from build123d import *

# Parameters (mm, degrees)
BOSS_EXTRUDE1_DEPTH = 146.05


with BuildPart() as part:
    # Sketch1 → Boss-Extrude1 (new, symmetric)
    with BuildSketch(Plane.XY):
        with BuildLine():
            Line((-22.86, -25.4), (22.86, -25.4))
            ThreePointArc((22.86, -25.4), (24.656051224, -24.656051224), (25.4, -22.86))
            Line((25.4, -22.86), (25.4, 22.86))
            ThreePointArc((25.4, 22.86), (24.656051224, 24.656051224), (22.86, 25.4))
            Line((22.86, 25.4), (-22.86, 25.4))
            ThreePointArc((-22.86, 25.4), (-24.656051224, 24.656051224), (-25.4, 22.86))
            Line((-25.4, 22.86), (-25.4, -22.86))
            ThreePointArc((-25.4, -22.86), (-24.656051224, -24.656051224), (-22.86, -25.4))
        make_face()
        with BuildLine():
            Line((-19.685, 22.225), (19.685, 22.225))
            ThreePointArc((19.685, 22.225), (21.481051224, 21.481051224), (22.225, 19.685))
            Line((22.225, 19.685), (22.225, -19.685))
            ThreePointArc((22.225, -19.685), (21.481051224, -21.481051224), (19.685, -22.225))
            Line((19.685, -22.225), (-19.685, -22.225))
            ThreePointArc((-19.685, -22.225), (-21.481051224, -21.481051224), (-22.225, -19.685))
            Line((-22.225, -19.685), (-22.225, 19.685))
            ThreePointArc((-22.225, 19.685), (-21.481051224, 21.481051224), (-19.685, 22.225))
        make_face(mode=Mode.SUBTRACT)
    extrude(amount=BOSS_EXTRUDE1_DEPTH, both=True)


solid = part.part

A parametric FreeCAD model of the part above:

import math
import FreeCAD as App
import Part
import Sketcher
Q = App.Units.Quantity

doc = App.newDocument("Part")
body = doc.addObject("PartDesign::Body", "Body")

# Sketch on XY plane
sketch1 = body.newObject("Sketcher::SketchObject", "Sketch")
sketch1.AttachmentSupport = (doc.getObject("XY_Plane"), [""])
sketch1.MapMode = "FlatFace"
sketch1.addGeometry(Part.LineSegment(App.Vector(-22.9, -25.4, 0), App.Vector(22.9, -25.4, 0)), False)
sketch1.addGeometry(Part.ArcOfCircle(Part.Circle(App.Vector(22.9, -22.9, 0), App.Vector(0, 0, 1), 2.5), math.radians(-90), math.radians(0)), False)
sketch1.addGeometry(Part.LineSegment(App.Vector(25.4, -22.9, 0), App.Vector(25.4, 22.9, 0)), False)
sketch1.addGeometry(Part.ArcOfCircle(Part.Circle(App.Vector(22.9, 22.9, 0), App.Vector(0, 0, 1), 2.5), math.radians(0), math.radians(90)), False)
sketch1.addGeometry(Part.LineSegment(App.Vector(22.9, 25.4, 0), App.Vector(-22.9, 25.4, 0)), False)
sketch1.addGeometry(Part.ArcOfCircle(Part.Circle(App.Vector(-22.9, 22.9, 0), App.Vector(0, 0, 1), 2.5), math.radians(90), math.radians(180)), False)
sketch1.addGeometry(Part.LineSegment(App.Vector(-25.4, 22.9, 0), App.Vector(-25.4, -22.9, 0)), False)
sketch1.addGeometry(Part.ArcOfCircle(Part.Circle(App.Vector(-22.9, -22.9, 0), App.Vector(0, 0, 1), 2.5), math.radians(-180), math.radians(-90)), False)
sketch1.addGeometry(Part.ArcOfCircle(Part.Circle(App.Vector(-19.7, 19.7, 0), App.Vector(0, 0, 1), 2.5), math.radians(90), math.radians(180)), False)
sketch1.addGeometry(Part.LineSegment(App.Vector(-19.7, 22.2, 0), App.Vector(19.7, 22.2, 0)), False)
sketch1.addGeometry(Part.ArcOfCircle(Part.Circle(App.Vector(19.7, 19.7, 0), App.Vector(0, 0, 1), 2.5), math.radians(0), math.radians(90)), False)
sketch1.addGeometry(Part.LineSegment(App.Vector(22.2, 19.7, 0), App.Vector(22.2, -19.7, 0)), False)
sketch1.addGeometry(Part.ArcOfCircle(Part.Circle(App.Vector(19.7, -19.7, 0), App.Vector(0, 0, 1), 2.5), math.radians(-90), math.radians(0)), False)
sketch1.addGeometry(Part.LineSegment(App.Vector(19.7, -22.2, 0), App.Vector(-19.7, -22.2, 0)), False)
sketch1.addGeometry(Part.ArcOfCircle(Part.Circle(App.Vector(-19.7, -19.7, 0), App.Vector(0, 0, 1), 2.5), math.radians(-180), math.radians(-90)), False)
sketch1.addGeometry(Part.LineSegment(App.Vector(-22.2, -19.7, 0), App.Vector(-22.2, 19.7, 0)), False)
sketch1.addConstraint(Sketcher.Constraint("Tangent", 0, 2, 1, 1))
sketch1.addConstraint(Sketcher.Constraint("Tangent", 1, 2, 2, 1))
sketch1.addConstraint(Sketcher.Constraint("Tangent", 2, 2, 3, 1))
sketch1.addConstraint(Sketcher.Constraint("Tangent", 3, 2, 4, 1))
sketch1.addConstraint(Sketcher.Constraint("Tangent", 4, 2, 5, 1))
sketch1.addConstraint(Sketcher.Constraint("Tangent", 5, 2, 6, 1))
sketch1.addConstraint(Sketcher.Constraint("Tangent", 6, 2, 7, 1))
sketch1.addConstraint(Sketcher.Constraint("Tangent", 7, 2, 0, 1))
sketch1.addConstraint(Sketcher.Constraint("Tangent", 8, 1, 9, 1))
sketch1.addConstraint(Sketcher.Constraint("Tangent", 9, 2, 10, 2))
sketch1.addConstraint(Sketcher.Constraint("Tangent", 10, 1, 11, 1))
sketch1.addConstraint(Sketcher.Constraint("Tangent", 11, 2, 12, 2))
sketch1.addConstraint(Sketcher.Constraint("Tangent", 12, 1, 13, 1))
sketch1.addConstraint(Sketcher.Constraint("Tangent", 13, 2, 14, 2))
sketch1.addConstraint(Sketcher.Constraint("Tangent", 14, 1, 15, 1))
sketch1.addConstraint(Sketcher.Constraint("Tangent", 15, 2, 8, 2))
sketch1.addConstraint(Sketcher.Constraint("Horizontal", 0))
sketch1.addConstraint(Sketcher.Constraint("Vertical", 2))
sketch1.addConstraint(Sketcher.Constraint("Horizontal", 4))
sketch1.addConstraint(Sketcher.Constraint("Vertical", 6))
sketch1.addConstraint(Sketcher.Constraint("Horizontal", 9))
sketch1.addConstraint(Sketcher.Constraint("Vertical", 11))
sketch1.addConstraint(Sketcher.Constraint("Horizontal", 13))
sketch1.addConstraint(Sketcher.Constraint("Vertical", 15))
sketch1.addConstraint(Sketcher.Constraint("Equal", 1, 3))
sketch1.addConstraint(Sketcher.Constraint("Equal", 3, 5))
sketch1.addConstraint(Sketcher.Constraint("Equal", 5, 7))
sketch1.addConstraint(Sketcher.Constraint("Equal", 7, 8))
sketch1.addConstraint(Sketcher.Constraint("Equal", 8, 10))
sketch1.addConstraint(Sketcher.Constraint("Equal", 10, 12))
sketch1.addConstraint(Sketcher.Constraint("Equal", 12, 14))
sketch1.addConstraint(Sketcher.Constraint("Symmetric", 1, 3, 5, 3, -1, 1))
sketch1.addConstraint(Sketcher.Constraint("Symmetric", 8, 3, 12, 3, -1, 1))
sketch1.addConstraint(Sketcher.Constraint("Equal", 4, 2))
sketch1.addConstraint(Sketcher.Constraint("Equal", 13, 11))
sketch1.addConstraint(Sketcher.Constraint("Radius", 1, Q("0.1 in")))
sketch1.addConstraint(Sketcher.Constraint("DistanceX", 0, 1, 0, 2, Q("1.8 in")))
sketch1.addConstraint(Sketcher.Constraint("DistanceX", 9, 1, 9, 2, Q("1.55 in")))
pad1 = body.newObject("PartDesign::Pad", "Pad")
pad1.Profile = sketch1
pad1.Length = Q("11.5 in")
pad1.Midplane = True

doc.recompute()
